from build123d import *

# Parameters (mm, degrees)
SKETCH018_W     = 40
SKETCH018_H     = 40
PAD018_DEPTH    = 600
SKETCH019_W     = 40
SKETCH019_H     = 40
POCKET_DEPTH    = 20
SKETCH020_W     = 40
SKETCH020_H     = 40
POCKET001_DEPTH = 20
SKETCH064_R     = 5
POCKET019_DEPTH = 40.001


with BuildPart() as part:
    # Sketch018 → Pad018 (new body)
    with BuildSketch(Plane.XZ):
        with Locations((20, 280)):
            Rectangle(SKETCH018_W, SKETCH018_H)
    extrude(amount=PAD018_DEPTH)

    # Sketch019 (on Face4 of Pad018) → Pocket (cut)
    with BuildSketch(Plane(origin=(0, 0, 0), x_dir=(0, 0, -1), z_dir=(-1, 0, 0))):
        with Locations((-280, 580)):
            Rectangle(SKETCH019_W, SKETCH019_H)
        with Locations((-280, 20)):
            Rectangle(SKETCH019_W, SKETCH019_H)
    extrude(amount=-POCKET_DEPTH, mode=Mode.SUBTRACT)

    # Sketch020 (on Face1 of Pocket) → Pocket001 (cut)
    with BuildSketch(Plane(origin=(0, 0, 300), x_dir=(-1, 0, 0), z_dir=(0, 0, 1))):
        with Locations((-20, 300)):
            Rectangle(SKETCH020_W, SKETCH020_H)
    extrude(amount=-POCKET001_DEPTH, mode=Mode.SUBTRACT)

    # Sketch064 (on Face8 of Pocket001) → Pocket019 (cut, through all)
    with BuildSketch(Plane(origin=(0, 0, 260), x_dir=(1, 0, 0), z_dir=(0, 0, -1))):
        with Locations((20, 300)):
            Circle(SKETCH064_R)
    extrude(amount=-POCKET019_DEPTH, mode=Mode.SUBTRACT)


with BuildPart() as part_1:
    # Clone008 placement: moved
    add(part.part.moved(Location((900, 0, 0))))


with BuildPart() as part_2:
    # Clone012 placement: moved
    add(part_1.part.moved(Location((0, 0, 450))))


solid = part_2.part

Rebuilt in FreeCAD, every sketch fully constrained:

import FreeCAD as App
import Part
import Sketcher
Q = App.Units.Quantity

doc = App.newDocument("Part")
body = doc.addObject("PartDesign::Body", "Body")

# Sketch on XZ plane
sketch1 = body.newObject("Sketcher::SketchObject", "Sketch")
sketch1.AttachmentSupport = (doc.getObject("XZ_Plane"), [""])
sketch1.MapMode = "FlatFace"
sketch1.addGeometry(Part.LineSegment(App.Vector(0, 300, 0), App.Vector(0, 260, 0)), False)
sketch1.addGeometry(Part.LineSegment(App.Vector(0, 260, 0), App.Vector(40, 260, 0)), False)
sketch1.addGeometry(Part.LineSegment(App.Vector(40, 260, 0), App.Vector(40, 300, 0)), False)
sketch1.addGeometry(Part.LineSegment(App.Vector(40, 300, 0), App.Vector(0, 300, 0)), False)
sketch1.addConstraint(Sketcher.Constraint("Coincident", 0, 2, 1, 1))
sketch1.addConstraint(Sketcher.Constraint("Coincident", 1, 2, 2, 1))
sketch1.addConstraint(Sketcher.Constraint("Coincident", 2, 2, 3, 1))
sketch1.addConstraint(Sketcher.Constraint("Coincident", 3, 2, 0, 1))
sketch1.addConstraint(Sketcher.Constraint("Vertical", 0))
sketch1.addConstraint(Sketcher.Constraint("Horizontal", 1))
sketch1.addConstraint(Sketcher.Constraint("Vertical", 2))
sketch1.addConstraint(Sketcher.Constraint("Horizontal", 3))
sketch1.addConstraint(Sketcher.Constraint("PointOnObject", 0, 2, -2))
sketch1.addConstraint(Sketcher.Constraint("Equal", 3, 0))
sketch1.addConstraint(Sketcher.Constraint("DistanceX", 1, 1, 1, 2, Q("40 mm")))
sketch1.addConstraint(Sketcher.Constraint("DistanceY", -1, 1, 0, 2, Q("260 mm")))
pad1 = body.newObject("PartDesign::Pad", "Pad")
pad1.Profile = sketch1
pad1.Length = 600

# Sketch on YZ plane
sketch2 = body.newObject("Sketcher::SketchObject", "Sketch001")
sketch2.AttachmentSupport = (doc.getObject("YZ_Plane"), [""])
sketch2.MapMode = "FlatFace"
sketch2.addGeometry(Part.LineSegment(App.Vector(-600, 300, 0), App.Vector(-560, 300, 0)), False)
sketch2.addGeometry(Part.LineSegment(App.Vector(-560, 300, 0), App.Vector(-560, 260, 0)), False)
sketch2.addGeometry(Part.LineSegment(App.Vector(-560, 260, 0), App.Vector(-600, 260, 0)), False)
sketch2.addGeometry(Part.LineSegment(App.Vector(-600, 260, 0), App.Vector(-600, 300, 0)), False)
sketch2.addGeometry(Part.LineSegment(App.Vector(-40, 300, 0), App.Vector(0, 300, 0)), False)
sketch2.addGeometry(Part.LineSegment(App.Vector(0, 300, 0), App.Vector(0, 260, 0)), False)
sketch2.addGeometry(Part.LineSegment(App.Vector(0, 260, 0), App.Vector(-40, 260, 0)), False)
sketch2.addGeometry(Part.LineSegment(App.Vector(-40, 260, 0), App.Vector(-40, 300, 0)), False)
sketch2.addConstraint(Sketcher.Constraint("Coincident", 0, 2, 1, 1))
sketch2.addConstraint(Sketcher.Constraint("Coincident", 1, 2, 2, 1))
sketch2.addConstraint(Sketcher.Constraint("Coincident", 2, 2, 3, 1))
sketch2.addConstraint(Sketcher.Constraint("Coincident", 3, 2, 0, 1))
sketch2.addConstraint(Sketcher.Constraint("Coincident", 4, 2, 5, 1))
sketch2.addConstraint(Sketcher.Constraint("Coincident", 5, 2, 6, 1))
sketch2.addConstraint(Sketcher.Constraint("Coincident", 6, 2, 7, 1))
sketch2.addConstraint(Sketcher.Constraint("Coincident", 7, 2, 4, 1))
sketch2.addConstraint(Sketcher.Constraint("Horizontal", 0))
sketch2.addConstraint(Sketcher.Constraint("Vertical", 1))
sketch2.addConstraint(Sketcher.Constraint("Horizontal", 2))
sketch2.addConstraint(Sketcher.Constraint("Vertical", 3))
sketch2.addConstraint(Sketcher.Constraint("Horizontal", 4))
sketch2.addConstraint(Sketcher.Constraint("Vertical", 5))
sketch2.addConstraint(Sketcher.Constraint("Horizontal", 6))
sketch2.addConstraint(Sketcher.Constraint("Vertical", 7))
sketch2.addConstraint(Sketcher.Constraint("PointOnObject", 4, 2, -2))
sketch2.addConstraint(Sketcher.Constraint("Horizontal", 3, 2, 4, 2))
sketch2.addConstraint(Sketcher.Constraint("Horizontal", 2, 2, 5, 2))
sketch2.addConstraint(Sketcher.Constraint("Equal", 2, 4))
sketch2.addConstraint(Sketcher.Constraint("Equal", 6, 1))
sketch2.addConstraint(Sketcher.Constraint("DistanceX", 0, 1, 0, 2, Q("40 mm")))
sketch2.addConstraint(Sketcher.Constraint("DistanceX", 0, 2, -1, 1, Q("560 mm")))
sketch2.addConstraint(Sketcher.Constraint("DistanceY", -1, 1, 0, 2, Q("300 mm")))
pocket1 = body.newObject("PartDesign::Pocket", "Pocket")
pocket1.Profile = sketch2
pocket1.Length = 20
pocket1.Reversed = True

# Sketch on XY plane
sketch3 = body.newObject("Sketcher::SketchObject", "Sketch002")
sketch3.AttachmentSupport = (doc.getObject("XY_Plane"), [""])
sketch3.MapMode = "FlatFace"
sketch3.AttachmentOffset = App.Placement(App.Vector(0, 0, 300), App.Rotation())
sketch3.addGeometry(Part.LineSegment(App.Vector(40, -320, 0), App.Vector(40, -280, 0)), False)
sketch3.addGeometry(Part.LineSegment(App.Vector(40, -280, 0), App.Vector(0, -280, 0)), False)
sketch3.addGeometry(Part.LineSegment(App.Vector(0, -280, 0), App.Vector(0, -320, 0)), False)
sketch3.addGeometry(Part.LineSegment(App.Vector(0, -320, 0), App.Vector(40, -320, 0)), False)
sketch3.addConstraint(Sketcher.Constraint("Coincident", 0, 2, 1, 1))
sketch3.addConstraint(Sketcher.Constraint("Coincident", 1, 2, 2, 1))
sketch3.addConstraint(Sketcher.Constraint("Coincident", 2, 2, 3, 1))
sketch3.addConstraint(Sketcher.Constraint("Coincident", 3, 2, 0, 1))
sketch3.addConstraint(Sketcher.Constraint("Vertical", 0))
sketch3.addConstraint(Sketcher.Constraint("Horizontal", 1))
sketch3.addConstraint(Sketcher.Constraint("Vertical", 2))
sketch3.addConstraint(Sketcher.Constraint("Horizontal", 3))
sketch3.addConstraint(Sketcher.Constraint("PointOnObject", 1, 2, -2))
sketch3.addConstraint(Sketcher.Constraint("Equal", 3, 0))
sketch3.addConstraint(Sketcher.Constraint("DistanceX", 1, 2, 1, 1, Q("40 mm")))
sketch3.addConstraint(Sketcher.Constraint("DistanceY", 0, 2, -1, 1, Q("280 mm")))
pocket2 = body.newObject("PartDesign::Pocket", "Pocket001")
pocket2.Profile = sketch3
pocket2.Length = 20

# Sketch on XY plane
sketch4 = body.newObject("Sketcher::SketchObject", "Sketch003")
sketch4.AttachmentSupport = (doc.getObject("XY_Plane"), [""])
sketch4.MapMode = "FlatFace"
sketch4.AttachmentOffset = App.Placement(App.Vector(0, 0, 260), App.Rotation())
sketch4.addGeometry(Part.Circle(App.Vector(20, -300, 0), App.Vector(0, 0, 1), 5), False)
sketch4.addConstraint(Sketcher.Constraint("Diameter", 0, Q("10 mm")))
sketch4.addConstraint(Sketcher.Constraint("DistanceX", -1, 1, 0, 3, Q("20 mm")))
sketch4.addConstraint(Sketcher.Constraint("DistanceY", 0, 3, -1, 1, Q("300 mm")))
pocket3 = body.newObject("PartDesign::Pocket", "Pocket002")
pocket3.Profile = sketch4
pocket3.Type = "ThroughAll"
pocket3.Reversed = True
body2 = doc.addObject("PartDesign::Body", "Body001")
doc.recompute()

body.Placement = App.Placement(App.Vector(900, 0, 0), App.Rotation(App.Vector(0, 0, 1), 0))
boolean = body2.newObject("PartDesign::Boolean", "Boolean")
boolean.Type = "Fuse"
boolean.addObjects([body])
body3 = doc.addObject("PartDesign::Body", "Body002")
doc.recompute()

body2.Placement = App.Placement(App.Vector(0, 0, 450), App.Rotation(App.Vector(0, 0, 1), 0))
boolean2 = body3.newObject("PartDesign::Boolean", "Boolean001")
boolean2.Type = "Fuse"
boolean2.addObjects([body2])

doc.recompute()
